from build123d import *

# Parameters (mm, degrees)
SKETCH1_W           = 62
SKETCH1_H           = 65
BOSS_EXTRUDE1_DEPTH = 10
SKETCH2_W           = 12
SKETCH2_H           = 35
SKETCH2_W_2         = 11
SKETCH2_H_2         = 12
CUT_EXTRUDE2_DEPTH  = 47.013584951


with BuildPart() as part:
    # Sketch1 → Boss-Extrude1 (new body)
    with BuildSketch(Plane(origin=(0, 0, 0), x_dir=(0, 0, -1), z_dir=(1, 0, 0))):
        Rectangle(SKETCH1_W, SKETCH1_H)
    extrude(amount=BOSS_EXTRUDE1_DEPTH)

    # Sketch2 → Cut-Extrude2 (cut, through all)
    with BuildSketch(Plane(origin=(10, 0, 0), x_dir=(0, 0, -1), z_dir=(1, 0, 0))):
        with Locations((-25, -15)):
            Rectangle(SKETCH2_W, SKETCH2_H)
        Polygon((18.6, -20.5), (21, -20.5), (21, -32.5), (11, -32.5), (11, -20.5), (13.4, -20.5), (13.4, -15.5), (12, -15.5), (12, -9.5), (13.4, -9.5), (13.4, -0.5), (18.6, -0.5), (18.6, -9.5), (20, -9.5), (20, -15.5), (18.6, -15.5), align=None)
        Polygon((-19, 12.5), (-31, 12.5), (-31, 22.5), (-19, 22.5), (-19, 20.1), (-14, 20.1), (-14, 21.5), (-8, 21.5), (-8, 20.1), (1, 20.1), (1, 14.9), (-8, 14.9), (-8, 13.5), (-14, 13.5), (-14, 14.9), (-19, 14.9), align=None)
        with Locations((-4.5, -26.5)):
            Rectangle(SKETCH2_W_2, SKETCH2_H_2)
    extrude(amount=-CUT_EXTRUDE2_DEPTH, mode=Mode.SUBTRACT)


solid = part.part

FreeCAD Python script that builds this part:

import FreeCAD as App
import Part
import Sketcher
from FreeCAD import Vector
Q = App.Units.Quantity

doc = App.newDocument("Part")
params = doc.addObject("Spreadsheet::Sheet", "Params")
for row, (alias, value) in enumerate([
    ("sketch1_width", "65 mm"),
    ("sketch1_height", "62 mm"),
    ("pad1_length", "10 mm"),
    ("sketch2_width", "35 mm"),
    ("sketch2_width2", "5 mm"),
    ("sketch2_width3", "6 mm"),
    ("sketch2_width4", "9 mm"),
    ("sketch2_width5", "12 mm"),
], start=1):
    params.set(f"A{row}", alias)
    params.set(f"B{row}", "=" + value)
    params.setAlias(f"B{row}", alias)

body = doc.addObject("PartDesign::Body", "Body")

sketch1 = body.newObject("Sketcher::SketchObject", "Sketch")
sketch1.AttachmentSupport = (doc.getObject("YZ_Plane"), [""])
sketch1.MapMode = "FlatFace"
sketch1.addGeometry([
    Part.LineSegment(Vector(32, 31, 0), Vector(-32, 31, 0)),
    Part.LineSegment(Vector(-32, 31, 0), Vector(-32, -31, 0)),
    Part.LineSegment(Vector(-32, -31, 0), Vector(32, -31, 0)),
    Part.LineSegment(Vector(32, -31, 0), Vector(32, 31, 0)),
], False)
sketch1.addConstraint([
    Sketcher.Constraint("Coincident", 0, 2, 1, 1),
    Sketcher.Constraint("Coincident", 1, 2, 2, 1),
    Sketcher.Constraint("Coincident", 2, 2, 3, 1),
    Sketcher.Constraint("Coincident", 3, 2, 0, 1),
    Sketcher.Constraint("Horizontal", 0),
    Sketcher.Constraint("Vertical", 1),
    Sketcher.Constraint("Horizontal", 2),
    Sketcher.Constraint("Vertical", 3),
    Sketcher.Constraint("Symmetric", 0, 2, 2, 2, -1, 1),
    Sketcher.Constraint("DistanceX", 0, 2, 0, 1, Q("65 mm")),
    Sketcher.Constraint("DistanceY", 1, 2, 1, 1, Q("62 mm")),
])
sketch1.setExpression("Constraints[9]", "Params.sketch1_width")
sketch1.setExpression("Constraints[10]", "Params.sketch1_height")
pad1 = body.newObject("PartDesign::Pad", "Pad")
pad1.Profile = sketch1
pad1.setExpression("Length", "Params.pad1_length")

sketch2 = body.newObject("Sketcher::SketchObject", "Sketch001")
sketch2.AttachmentSupport = (doc.getObject("YZ_Plane"), [""])
sketch2.MapMode = "FlatFace"
sketch2.AttachmentOffset = App.Placement(Vector(0, 0, 10), App.Rotation())
sketch2.addGeometry([
    Part.LineSegment(Vector(2.5, 31, 0), Vector(-32.5, 31, 0)),
    Part.LineSegment(Vector(-32.5, 31, 0), Vector(-32.5, 19, 0)),
    Part.LineSegment(Vector(-32.5, 19, 0), Vector(2.5, 19, 0)),
    Part.LineSegment(Vector(2.5, 19, 0), Vector(2.5, 31, 0)),
    Part.LineSegment(Vector(-20.5, -21, 0), Vector(-20.5, -18.6, 0)),
    Part.LineSegment(Vector(-20.5, -18.6, 0), Vector(-15.5, -18.6, 0)),
    Part.LineSegment(Vector(-15.5, -18.6, 0), Vector(-15.5, -20, 0)),
    Part.LineSegment(Vector(-15.5, -20, 0), Vector(-9.5, -20, 0)),
    Part.LineSegment(Vector(-9.5, -20, 0), Vector(-9.5, -18.6, 0)),
    Part.LineSegment(Vector(-9.5, -18.6, 0), Vector(-0.5, -18.6, 0)),
    Part.LineSegment(Vector(-0.5, -18.6, 0), Vector(-0.5, -13.4, 0)),
    Part.LineSegment(Vector(-0.5, -13.4, 0), Vector(-9.5, -13.4, 0)),
    Part.LineSegment(Vector(-9.5, -13.4, 0), Vector(-9.5, -12, 0)),
    Part.LineSegment(Vector(-9.5, -12, 0), Vector(-15.5, -12, 0)),
    Part.LineSegment(Vector(-15.5, -12, 0), Vector(-15.5, -13.4, 0)),
    Part.LineSegment(Vector(-15.5, -13.4, 0), Vector(-20.5, -13.4, 0)),
    Part.LineSegment(Vector(-20.5, -13.4, 0), Vector(-20.5, -11, 0)),
    Part.LineSegment(Vector(-20.5, -11, 0), Vector(-32.5, -11, 0)),
    Part.LineSegment(Vector(-32.5, -11, 0), Vector(-32.5, -21, 0)),
    Part.LineSegment(Vector(-32.5, -21, 0), Vector(-20.5, -21, 0)),
    Part.LineSegment(Vector(12.5, 31, 0), Vector(12.5, 19, 0)),
    Part.LineSegment(Vector(12.5, 19, 0), Vector(14.9, 19, 0)),
    Part.LineSegment(Vector(14.9, 19, 0), Vector(14.9, 14, 0)),
    Part.LineSegment(Vector(14.9, 14, 0), Vector(13.5, 14, 0)),
    Part.LineSegment(Vector(13.5, 14, 0), Vector(13.5, 8, 0)),
    Part.LineSegment(Vector(13.5, 8, 0), Vector(14.9, 8, 0)),
    Part.LineSegment(Vector(14.9, 8, 0), Vector(14.9, -1, 0)),
    Part.LineSegment(Vector(14.9, -1, 0), Vector(20.1, -1, 0)),
    Part.LineSegment(Vector(20.1, -1, 0), Vector(20.1, 8, 0)),
    Part.LineSegment(Vector(20.1, 8, 0), Vector(21.5, 8, 0)),
    Part.LineSegment(Vector(21.5, 8, 0), Vector(21.5, 14, 0)),
    Part.LineSegment(Vector(21.5, 14, 0), Vector(20.1, 14, 0)),
    Part.LineSegment(Vector(20.1, 14, 0), Vector(20.1, 19, 0)),
    Part.LineSegment(Vector(20.1, 19, 0), Vector(22.5, 19, 0)),
    Part.LineSegment(Vector(22.5, 19, 0), Vector(22.5, 31, 0)),
    Part.LineSegment(Vector(22.5, 31, 0), Vector(12.5, 31, 0)),
    Part.LineSegment(Vector(-20.5, 10, 0), Vector(-32.5, 10, 0)),
    Part.LineSegment(Vector(-32.5, 10, 0), Vector(-32.5, -1, 0)),
    Part.LineSegment(Vector(-32.5, -1, 0), Vector(-20.5, -1, 0)),
    Part.LineSegment(Vector(-20.5, -1, 0), Vector(-20.5, 10, 0)),
], False)
sketch2.addConstraint([
    Sketcher.Constraint("Coincident", 0, 2, 1, 1),
    Sketcher.Constraint("Coincident", 1, 2, 2, 1),
    Sketcher.Constraint("Coincident", 2, 2, 3, 1),
    Sketcher.Constraint("Coincident", 3, 2, 0, 1),
    Sketcher.Constraint("Coincident", 4, 2, 5, 1),
    Sketcher.Constraint("Coincident", 5, 2, 6, 1),
    Sketcher.Constraint("Coincident", 6, 2, 7, 1),
    Sketcher.Constraint("Coincident", 7, 2, 8, 1),
    Sketcher.Constraint("Coincident", 8, 2, 9, 1),
    Sketcher.Constraint("Coincident", 9, 2, 10, 1),
    Sketcher.Constraint("Coincident", 10, 2, 11, 1),
    Sketcher.Constraint("Coincident", 11, 2, 12, 1),
    Sketcher.Constraint("Coincident", 12, 2, 13, 1),
    Sketcher.Constraint("Coincident", 13, 2, 14, 1),
    Sketcher.Constraint("Coincident", 14, 2, 15, 1),
    Sketcher.Constraint("Coincident", 15, 2, 16, 1),
    Sketcher.Constraint("Coincident", 16, 2, 17, 1),
    Sketcher.Constraint("Coincident", 17, 2, 18, 1),
    Sketcher.Constraint("Coincident", 18, 2, 19, 1),
    Sketcher.Constraint("Coincident", 19, 2, 4, 1),
    Sketcher.Constraint("Coincident", 20, 2, 21, 1),
    Sketcher.Constraint("Coincident", 21, 2, 22, 1),
    Sketcher.Constraint("Coincident", 22, 2, 23, 1),
    Sketcher.Constraint("Coincident", 23, 2, 24, 1),
    Sketcher.Constraint("Coincident", 24, 2, 25, 1),
    Sketcher.Constraint("Coincident", 25, 2, 26, 1),
    Sketcher.Constraint("Coincident", 26, 2, 27, 1),
    Sketcher.Constraint("Coincident", 27, 2, 28, 1),
    Sketcher.Constraint("Coincident", 28, 2, 29, 1),
    Sketcher.Constraint("Coincident", 29, 2, 30, 1),
    Sketcher.Constraint("Coincident", 30, 2, 31, 1),
    Sketcher.Constraint("Coincident", 31, 2, 32, 1),
    Sketcher.Constraint("Coincident", 32, 2, 33, 1),
    Sketcher.Constraint("Coincident", 33, 2, 34, 1),
    Sketcher.Constraint("Coincident", 34, 2, 35, 1),
    Sketcher.Constraint("Coincident", 35, 2, 20, 1),
    Sketcher.Constraint("Coincident", 36, 2, 37, 1),
    Sketcher.Constraint("Coincident", 37, 2, 38, 1),
    Sketcher.Constraint("Coincident", 38, 2, 39, 1),
    Sketcher.Constraint("Coincident", 39, 2, 36, 1),
    Sketcher.Constraint("Horizontal", 0),
    Sketcher.Constraint("Vertical", 1),
    Sketcher.Constraint("Horizontal", 2),
    Sketcher.Constraint("Vertical", 3),
    Sketcher.Constraint("Vertical", 4),
    Sketcher.Constraint("Horizontal", 5),
    Sketcher.Constraint("Vertical", 6),
    Sketcher.Constraint("Horizontal", 7),
    Sketcher.Constraint("Vertical", 8),
    Sketcher.Constraint("Horizontal", 9),
    Sketcher.Constraint("Vertical", 10),
    Sketcher.Constraint("Horizontal", 11),
    Sketcher.Constraint("Vertical", 12),
    Sketcher.Constraint("Horizontal", 13),
    Sketcher.Constraint("Vertical", 14),
    Sketcher.Constraint("Horizontal", 15),
    Sketcher.Constraint("Vertical", 16),
    Sketcher.Constraint("Horizontal", 17),
    Sketcher.Constraint("Vertical", 18),
    Sketcher.Constraint("Horizontal", 19),
    Sketcher.Constraint("Vertical", 20),
    Sketcher.Constraint("Horizontal", 21),
    Sketcher.Constraint("Vertical", 22),
    Sketcher.Constraint("Horizontal", 23),
    Sketcher.Constraint("Vertical", 24),
    Sketcher.Constraint("Horizontal", 25),
    Sketcher.Constraint("Vertical", 26),
    Sketcher.Constraint("Horizontal", 27),
    Sketcher.Constraint("Vertical", 28),
    Sketcher.Constraint("Horizontal", 29),
    Sketcher.Constraint("Vertical", 30),
    Sketcher.Constraint("Horizontal", 31),
    Sketcher.Constraint("Vertical", 32),
    Sketcher.Constraint("Horizontal", 33),
    Sketcher.Constraint("Vertical", 34),
    Sketcher.Constraint("Horizontal", 35),
    Sketcher.Constraint("Horizontal", 36),
    Sketcher.Constraint("Vertical", 37),
    Sketcher.Constraint("Horizontal", 38),
    Sketcher.Constraint("Vertical", 39),
    Sketcher.Constraint("Horizontal", 5, 2, 8, 2),
    Sketcher.Constraint("Horizontal", 11, 2, 14, 2),
    Sketcher.Constraint("Horizontal", 2, 2, 20, 2),
    Sketcher.Constraint("Horizontal", 25, 2, 28, 2),
    Sketcher.Constraint("Horizontal", 23, 2, 30, 2),
    Sketcher.Constraint("Horizontal", 21, 2, 32, 2),
    Sketcher.Constraint("Horizontal", 3, 2, 34, 2),
    Sketcher.Constraint("Horizontal", 27, 2, 37, 2),
    Sketcher.Constraint("Vertical", 8, 2, 11, 2),
    Sketcher.Constraint("Vertical", 6, 2, 13, 2),
    Sketcher.Constraint("Vertical", 4, 2, 15, 2),
    Sketcher.Constraint("Vertical", 1, 2, 17, 2),
    Sketcher.Constraint("Vertical", 22, 2, 25, 2),
    Sketcher.Constraint("Vertical", 28, 2, 31, 2),
    Sketcher.Constraint("Vertical", 18, 2, 36, 2),
    Sketcher.Constraint("Vertical", 19, 2, 38, 2),
    Sketcher.Constraint("Equal", 25, 29),
    Sketcher.Constraint("Equal", 21, 33),
    Sketcher.Constraint("Equal", 38, 1),
    Sketcher.Constraint("Equal", 33, 4),
    Sketcher.Constraint("Equal", 31, 6),
    Sketcher.Constraint("Equal", 27, 10),
    Sketcher.Constraint("Equal", 8, 12),
    Sketcher.Constraint("Equal", 4, 16),
    Sketcher.Constraint("Equal", 15, 22),
    Sketcher.Constraint("Equal", 13, 24),
    Sketcher.Constraint("Equal", 11, 26),
    Sketcher.Constraint("DistanceX", 0, 2, 0, 1, Q("35 mm")),
    Sketcher.Constraint("DistanceX", 5, 1, 5, 2, Q("5 mm")),
    Sketcher.Constraint("DistanceX", 7, 1, 7, 2, Q("6 mm")),
    Sketcher.Constraint("DistanceX", 9, 1, 9, 2, Q("9 mm")),
    Sketcher.Constraint("DistanceX", 17, 2, 17, 1, Q("12 mm")),
    Sketcher.Constraint("DistanceX", 35, 2, 35, 1, Q("10 mm")),
    Sketcher.Constraint("DistanceY", 37, 2, 37, 1, Q("11 mm")),
    Sketcher.Constraint("DistanceX", 21, 1, 21, 2, Q("2.4 mm")),
    Sketcher.Constraint("DistanceX", 23, 2, 23, 1, Q("1.4 mm")),
    Sketcher.Constraint("DistanceY", -1, 1, 0, 2, Q("31 mm")),
    Sketcher.Constraint("DistanceY", 6, 2, -1, 1, Q("20 mm")),
    Sketcher.Constraint("DistanceX", 2, 2, 20, 2, Q("10 mm")),
    Sketcher.Constraint("DistanceX", 0, 2, -1, 1, Q("32.5 mm")),
])
sketch2.setExpression("Constraints[107]", "Params.sketch2_width")
sketch2.setExpression("Constraints[108]", "Params.sketch2_width2")
sketch2.setExpression("Constraints[109]", "Params.sketch2_width3")
sketch2.setExpression("Constraints[110]", "Params.sketch2_width4")
sketch2.setExpression("Constraints[111]", "Params.sketch2_width5")
pocket1 = body.newObject("PartDesign::Pocket", "Pocket")
pocket1.Profile = sketch2
pocket1.Type = "ThroughAll"

doc.recompute()
